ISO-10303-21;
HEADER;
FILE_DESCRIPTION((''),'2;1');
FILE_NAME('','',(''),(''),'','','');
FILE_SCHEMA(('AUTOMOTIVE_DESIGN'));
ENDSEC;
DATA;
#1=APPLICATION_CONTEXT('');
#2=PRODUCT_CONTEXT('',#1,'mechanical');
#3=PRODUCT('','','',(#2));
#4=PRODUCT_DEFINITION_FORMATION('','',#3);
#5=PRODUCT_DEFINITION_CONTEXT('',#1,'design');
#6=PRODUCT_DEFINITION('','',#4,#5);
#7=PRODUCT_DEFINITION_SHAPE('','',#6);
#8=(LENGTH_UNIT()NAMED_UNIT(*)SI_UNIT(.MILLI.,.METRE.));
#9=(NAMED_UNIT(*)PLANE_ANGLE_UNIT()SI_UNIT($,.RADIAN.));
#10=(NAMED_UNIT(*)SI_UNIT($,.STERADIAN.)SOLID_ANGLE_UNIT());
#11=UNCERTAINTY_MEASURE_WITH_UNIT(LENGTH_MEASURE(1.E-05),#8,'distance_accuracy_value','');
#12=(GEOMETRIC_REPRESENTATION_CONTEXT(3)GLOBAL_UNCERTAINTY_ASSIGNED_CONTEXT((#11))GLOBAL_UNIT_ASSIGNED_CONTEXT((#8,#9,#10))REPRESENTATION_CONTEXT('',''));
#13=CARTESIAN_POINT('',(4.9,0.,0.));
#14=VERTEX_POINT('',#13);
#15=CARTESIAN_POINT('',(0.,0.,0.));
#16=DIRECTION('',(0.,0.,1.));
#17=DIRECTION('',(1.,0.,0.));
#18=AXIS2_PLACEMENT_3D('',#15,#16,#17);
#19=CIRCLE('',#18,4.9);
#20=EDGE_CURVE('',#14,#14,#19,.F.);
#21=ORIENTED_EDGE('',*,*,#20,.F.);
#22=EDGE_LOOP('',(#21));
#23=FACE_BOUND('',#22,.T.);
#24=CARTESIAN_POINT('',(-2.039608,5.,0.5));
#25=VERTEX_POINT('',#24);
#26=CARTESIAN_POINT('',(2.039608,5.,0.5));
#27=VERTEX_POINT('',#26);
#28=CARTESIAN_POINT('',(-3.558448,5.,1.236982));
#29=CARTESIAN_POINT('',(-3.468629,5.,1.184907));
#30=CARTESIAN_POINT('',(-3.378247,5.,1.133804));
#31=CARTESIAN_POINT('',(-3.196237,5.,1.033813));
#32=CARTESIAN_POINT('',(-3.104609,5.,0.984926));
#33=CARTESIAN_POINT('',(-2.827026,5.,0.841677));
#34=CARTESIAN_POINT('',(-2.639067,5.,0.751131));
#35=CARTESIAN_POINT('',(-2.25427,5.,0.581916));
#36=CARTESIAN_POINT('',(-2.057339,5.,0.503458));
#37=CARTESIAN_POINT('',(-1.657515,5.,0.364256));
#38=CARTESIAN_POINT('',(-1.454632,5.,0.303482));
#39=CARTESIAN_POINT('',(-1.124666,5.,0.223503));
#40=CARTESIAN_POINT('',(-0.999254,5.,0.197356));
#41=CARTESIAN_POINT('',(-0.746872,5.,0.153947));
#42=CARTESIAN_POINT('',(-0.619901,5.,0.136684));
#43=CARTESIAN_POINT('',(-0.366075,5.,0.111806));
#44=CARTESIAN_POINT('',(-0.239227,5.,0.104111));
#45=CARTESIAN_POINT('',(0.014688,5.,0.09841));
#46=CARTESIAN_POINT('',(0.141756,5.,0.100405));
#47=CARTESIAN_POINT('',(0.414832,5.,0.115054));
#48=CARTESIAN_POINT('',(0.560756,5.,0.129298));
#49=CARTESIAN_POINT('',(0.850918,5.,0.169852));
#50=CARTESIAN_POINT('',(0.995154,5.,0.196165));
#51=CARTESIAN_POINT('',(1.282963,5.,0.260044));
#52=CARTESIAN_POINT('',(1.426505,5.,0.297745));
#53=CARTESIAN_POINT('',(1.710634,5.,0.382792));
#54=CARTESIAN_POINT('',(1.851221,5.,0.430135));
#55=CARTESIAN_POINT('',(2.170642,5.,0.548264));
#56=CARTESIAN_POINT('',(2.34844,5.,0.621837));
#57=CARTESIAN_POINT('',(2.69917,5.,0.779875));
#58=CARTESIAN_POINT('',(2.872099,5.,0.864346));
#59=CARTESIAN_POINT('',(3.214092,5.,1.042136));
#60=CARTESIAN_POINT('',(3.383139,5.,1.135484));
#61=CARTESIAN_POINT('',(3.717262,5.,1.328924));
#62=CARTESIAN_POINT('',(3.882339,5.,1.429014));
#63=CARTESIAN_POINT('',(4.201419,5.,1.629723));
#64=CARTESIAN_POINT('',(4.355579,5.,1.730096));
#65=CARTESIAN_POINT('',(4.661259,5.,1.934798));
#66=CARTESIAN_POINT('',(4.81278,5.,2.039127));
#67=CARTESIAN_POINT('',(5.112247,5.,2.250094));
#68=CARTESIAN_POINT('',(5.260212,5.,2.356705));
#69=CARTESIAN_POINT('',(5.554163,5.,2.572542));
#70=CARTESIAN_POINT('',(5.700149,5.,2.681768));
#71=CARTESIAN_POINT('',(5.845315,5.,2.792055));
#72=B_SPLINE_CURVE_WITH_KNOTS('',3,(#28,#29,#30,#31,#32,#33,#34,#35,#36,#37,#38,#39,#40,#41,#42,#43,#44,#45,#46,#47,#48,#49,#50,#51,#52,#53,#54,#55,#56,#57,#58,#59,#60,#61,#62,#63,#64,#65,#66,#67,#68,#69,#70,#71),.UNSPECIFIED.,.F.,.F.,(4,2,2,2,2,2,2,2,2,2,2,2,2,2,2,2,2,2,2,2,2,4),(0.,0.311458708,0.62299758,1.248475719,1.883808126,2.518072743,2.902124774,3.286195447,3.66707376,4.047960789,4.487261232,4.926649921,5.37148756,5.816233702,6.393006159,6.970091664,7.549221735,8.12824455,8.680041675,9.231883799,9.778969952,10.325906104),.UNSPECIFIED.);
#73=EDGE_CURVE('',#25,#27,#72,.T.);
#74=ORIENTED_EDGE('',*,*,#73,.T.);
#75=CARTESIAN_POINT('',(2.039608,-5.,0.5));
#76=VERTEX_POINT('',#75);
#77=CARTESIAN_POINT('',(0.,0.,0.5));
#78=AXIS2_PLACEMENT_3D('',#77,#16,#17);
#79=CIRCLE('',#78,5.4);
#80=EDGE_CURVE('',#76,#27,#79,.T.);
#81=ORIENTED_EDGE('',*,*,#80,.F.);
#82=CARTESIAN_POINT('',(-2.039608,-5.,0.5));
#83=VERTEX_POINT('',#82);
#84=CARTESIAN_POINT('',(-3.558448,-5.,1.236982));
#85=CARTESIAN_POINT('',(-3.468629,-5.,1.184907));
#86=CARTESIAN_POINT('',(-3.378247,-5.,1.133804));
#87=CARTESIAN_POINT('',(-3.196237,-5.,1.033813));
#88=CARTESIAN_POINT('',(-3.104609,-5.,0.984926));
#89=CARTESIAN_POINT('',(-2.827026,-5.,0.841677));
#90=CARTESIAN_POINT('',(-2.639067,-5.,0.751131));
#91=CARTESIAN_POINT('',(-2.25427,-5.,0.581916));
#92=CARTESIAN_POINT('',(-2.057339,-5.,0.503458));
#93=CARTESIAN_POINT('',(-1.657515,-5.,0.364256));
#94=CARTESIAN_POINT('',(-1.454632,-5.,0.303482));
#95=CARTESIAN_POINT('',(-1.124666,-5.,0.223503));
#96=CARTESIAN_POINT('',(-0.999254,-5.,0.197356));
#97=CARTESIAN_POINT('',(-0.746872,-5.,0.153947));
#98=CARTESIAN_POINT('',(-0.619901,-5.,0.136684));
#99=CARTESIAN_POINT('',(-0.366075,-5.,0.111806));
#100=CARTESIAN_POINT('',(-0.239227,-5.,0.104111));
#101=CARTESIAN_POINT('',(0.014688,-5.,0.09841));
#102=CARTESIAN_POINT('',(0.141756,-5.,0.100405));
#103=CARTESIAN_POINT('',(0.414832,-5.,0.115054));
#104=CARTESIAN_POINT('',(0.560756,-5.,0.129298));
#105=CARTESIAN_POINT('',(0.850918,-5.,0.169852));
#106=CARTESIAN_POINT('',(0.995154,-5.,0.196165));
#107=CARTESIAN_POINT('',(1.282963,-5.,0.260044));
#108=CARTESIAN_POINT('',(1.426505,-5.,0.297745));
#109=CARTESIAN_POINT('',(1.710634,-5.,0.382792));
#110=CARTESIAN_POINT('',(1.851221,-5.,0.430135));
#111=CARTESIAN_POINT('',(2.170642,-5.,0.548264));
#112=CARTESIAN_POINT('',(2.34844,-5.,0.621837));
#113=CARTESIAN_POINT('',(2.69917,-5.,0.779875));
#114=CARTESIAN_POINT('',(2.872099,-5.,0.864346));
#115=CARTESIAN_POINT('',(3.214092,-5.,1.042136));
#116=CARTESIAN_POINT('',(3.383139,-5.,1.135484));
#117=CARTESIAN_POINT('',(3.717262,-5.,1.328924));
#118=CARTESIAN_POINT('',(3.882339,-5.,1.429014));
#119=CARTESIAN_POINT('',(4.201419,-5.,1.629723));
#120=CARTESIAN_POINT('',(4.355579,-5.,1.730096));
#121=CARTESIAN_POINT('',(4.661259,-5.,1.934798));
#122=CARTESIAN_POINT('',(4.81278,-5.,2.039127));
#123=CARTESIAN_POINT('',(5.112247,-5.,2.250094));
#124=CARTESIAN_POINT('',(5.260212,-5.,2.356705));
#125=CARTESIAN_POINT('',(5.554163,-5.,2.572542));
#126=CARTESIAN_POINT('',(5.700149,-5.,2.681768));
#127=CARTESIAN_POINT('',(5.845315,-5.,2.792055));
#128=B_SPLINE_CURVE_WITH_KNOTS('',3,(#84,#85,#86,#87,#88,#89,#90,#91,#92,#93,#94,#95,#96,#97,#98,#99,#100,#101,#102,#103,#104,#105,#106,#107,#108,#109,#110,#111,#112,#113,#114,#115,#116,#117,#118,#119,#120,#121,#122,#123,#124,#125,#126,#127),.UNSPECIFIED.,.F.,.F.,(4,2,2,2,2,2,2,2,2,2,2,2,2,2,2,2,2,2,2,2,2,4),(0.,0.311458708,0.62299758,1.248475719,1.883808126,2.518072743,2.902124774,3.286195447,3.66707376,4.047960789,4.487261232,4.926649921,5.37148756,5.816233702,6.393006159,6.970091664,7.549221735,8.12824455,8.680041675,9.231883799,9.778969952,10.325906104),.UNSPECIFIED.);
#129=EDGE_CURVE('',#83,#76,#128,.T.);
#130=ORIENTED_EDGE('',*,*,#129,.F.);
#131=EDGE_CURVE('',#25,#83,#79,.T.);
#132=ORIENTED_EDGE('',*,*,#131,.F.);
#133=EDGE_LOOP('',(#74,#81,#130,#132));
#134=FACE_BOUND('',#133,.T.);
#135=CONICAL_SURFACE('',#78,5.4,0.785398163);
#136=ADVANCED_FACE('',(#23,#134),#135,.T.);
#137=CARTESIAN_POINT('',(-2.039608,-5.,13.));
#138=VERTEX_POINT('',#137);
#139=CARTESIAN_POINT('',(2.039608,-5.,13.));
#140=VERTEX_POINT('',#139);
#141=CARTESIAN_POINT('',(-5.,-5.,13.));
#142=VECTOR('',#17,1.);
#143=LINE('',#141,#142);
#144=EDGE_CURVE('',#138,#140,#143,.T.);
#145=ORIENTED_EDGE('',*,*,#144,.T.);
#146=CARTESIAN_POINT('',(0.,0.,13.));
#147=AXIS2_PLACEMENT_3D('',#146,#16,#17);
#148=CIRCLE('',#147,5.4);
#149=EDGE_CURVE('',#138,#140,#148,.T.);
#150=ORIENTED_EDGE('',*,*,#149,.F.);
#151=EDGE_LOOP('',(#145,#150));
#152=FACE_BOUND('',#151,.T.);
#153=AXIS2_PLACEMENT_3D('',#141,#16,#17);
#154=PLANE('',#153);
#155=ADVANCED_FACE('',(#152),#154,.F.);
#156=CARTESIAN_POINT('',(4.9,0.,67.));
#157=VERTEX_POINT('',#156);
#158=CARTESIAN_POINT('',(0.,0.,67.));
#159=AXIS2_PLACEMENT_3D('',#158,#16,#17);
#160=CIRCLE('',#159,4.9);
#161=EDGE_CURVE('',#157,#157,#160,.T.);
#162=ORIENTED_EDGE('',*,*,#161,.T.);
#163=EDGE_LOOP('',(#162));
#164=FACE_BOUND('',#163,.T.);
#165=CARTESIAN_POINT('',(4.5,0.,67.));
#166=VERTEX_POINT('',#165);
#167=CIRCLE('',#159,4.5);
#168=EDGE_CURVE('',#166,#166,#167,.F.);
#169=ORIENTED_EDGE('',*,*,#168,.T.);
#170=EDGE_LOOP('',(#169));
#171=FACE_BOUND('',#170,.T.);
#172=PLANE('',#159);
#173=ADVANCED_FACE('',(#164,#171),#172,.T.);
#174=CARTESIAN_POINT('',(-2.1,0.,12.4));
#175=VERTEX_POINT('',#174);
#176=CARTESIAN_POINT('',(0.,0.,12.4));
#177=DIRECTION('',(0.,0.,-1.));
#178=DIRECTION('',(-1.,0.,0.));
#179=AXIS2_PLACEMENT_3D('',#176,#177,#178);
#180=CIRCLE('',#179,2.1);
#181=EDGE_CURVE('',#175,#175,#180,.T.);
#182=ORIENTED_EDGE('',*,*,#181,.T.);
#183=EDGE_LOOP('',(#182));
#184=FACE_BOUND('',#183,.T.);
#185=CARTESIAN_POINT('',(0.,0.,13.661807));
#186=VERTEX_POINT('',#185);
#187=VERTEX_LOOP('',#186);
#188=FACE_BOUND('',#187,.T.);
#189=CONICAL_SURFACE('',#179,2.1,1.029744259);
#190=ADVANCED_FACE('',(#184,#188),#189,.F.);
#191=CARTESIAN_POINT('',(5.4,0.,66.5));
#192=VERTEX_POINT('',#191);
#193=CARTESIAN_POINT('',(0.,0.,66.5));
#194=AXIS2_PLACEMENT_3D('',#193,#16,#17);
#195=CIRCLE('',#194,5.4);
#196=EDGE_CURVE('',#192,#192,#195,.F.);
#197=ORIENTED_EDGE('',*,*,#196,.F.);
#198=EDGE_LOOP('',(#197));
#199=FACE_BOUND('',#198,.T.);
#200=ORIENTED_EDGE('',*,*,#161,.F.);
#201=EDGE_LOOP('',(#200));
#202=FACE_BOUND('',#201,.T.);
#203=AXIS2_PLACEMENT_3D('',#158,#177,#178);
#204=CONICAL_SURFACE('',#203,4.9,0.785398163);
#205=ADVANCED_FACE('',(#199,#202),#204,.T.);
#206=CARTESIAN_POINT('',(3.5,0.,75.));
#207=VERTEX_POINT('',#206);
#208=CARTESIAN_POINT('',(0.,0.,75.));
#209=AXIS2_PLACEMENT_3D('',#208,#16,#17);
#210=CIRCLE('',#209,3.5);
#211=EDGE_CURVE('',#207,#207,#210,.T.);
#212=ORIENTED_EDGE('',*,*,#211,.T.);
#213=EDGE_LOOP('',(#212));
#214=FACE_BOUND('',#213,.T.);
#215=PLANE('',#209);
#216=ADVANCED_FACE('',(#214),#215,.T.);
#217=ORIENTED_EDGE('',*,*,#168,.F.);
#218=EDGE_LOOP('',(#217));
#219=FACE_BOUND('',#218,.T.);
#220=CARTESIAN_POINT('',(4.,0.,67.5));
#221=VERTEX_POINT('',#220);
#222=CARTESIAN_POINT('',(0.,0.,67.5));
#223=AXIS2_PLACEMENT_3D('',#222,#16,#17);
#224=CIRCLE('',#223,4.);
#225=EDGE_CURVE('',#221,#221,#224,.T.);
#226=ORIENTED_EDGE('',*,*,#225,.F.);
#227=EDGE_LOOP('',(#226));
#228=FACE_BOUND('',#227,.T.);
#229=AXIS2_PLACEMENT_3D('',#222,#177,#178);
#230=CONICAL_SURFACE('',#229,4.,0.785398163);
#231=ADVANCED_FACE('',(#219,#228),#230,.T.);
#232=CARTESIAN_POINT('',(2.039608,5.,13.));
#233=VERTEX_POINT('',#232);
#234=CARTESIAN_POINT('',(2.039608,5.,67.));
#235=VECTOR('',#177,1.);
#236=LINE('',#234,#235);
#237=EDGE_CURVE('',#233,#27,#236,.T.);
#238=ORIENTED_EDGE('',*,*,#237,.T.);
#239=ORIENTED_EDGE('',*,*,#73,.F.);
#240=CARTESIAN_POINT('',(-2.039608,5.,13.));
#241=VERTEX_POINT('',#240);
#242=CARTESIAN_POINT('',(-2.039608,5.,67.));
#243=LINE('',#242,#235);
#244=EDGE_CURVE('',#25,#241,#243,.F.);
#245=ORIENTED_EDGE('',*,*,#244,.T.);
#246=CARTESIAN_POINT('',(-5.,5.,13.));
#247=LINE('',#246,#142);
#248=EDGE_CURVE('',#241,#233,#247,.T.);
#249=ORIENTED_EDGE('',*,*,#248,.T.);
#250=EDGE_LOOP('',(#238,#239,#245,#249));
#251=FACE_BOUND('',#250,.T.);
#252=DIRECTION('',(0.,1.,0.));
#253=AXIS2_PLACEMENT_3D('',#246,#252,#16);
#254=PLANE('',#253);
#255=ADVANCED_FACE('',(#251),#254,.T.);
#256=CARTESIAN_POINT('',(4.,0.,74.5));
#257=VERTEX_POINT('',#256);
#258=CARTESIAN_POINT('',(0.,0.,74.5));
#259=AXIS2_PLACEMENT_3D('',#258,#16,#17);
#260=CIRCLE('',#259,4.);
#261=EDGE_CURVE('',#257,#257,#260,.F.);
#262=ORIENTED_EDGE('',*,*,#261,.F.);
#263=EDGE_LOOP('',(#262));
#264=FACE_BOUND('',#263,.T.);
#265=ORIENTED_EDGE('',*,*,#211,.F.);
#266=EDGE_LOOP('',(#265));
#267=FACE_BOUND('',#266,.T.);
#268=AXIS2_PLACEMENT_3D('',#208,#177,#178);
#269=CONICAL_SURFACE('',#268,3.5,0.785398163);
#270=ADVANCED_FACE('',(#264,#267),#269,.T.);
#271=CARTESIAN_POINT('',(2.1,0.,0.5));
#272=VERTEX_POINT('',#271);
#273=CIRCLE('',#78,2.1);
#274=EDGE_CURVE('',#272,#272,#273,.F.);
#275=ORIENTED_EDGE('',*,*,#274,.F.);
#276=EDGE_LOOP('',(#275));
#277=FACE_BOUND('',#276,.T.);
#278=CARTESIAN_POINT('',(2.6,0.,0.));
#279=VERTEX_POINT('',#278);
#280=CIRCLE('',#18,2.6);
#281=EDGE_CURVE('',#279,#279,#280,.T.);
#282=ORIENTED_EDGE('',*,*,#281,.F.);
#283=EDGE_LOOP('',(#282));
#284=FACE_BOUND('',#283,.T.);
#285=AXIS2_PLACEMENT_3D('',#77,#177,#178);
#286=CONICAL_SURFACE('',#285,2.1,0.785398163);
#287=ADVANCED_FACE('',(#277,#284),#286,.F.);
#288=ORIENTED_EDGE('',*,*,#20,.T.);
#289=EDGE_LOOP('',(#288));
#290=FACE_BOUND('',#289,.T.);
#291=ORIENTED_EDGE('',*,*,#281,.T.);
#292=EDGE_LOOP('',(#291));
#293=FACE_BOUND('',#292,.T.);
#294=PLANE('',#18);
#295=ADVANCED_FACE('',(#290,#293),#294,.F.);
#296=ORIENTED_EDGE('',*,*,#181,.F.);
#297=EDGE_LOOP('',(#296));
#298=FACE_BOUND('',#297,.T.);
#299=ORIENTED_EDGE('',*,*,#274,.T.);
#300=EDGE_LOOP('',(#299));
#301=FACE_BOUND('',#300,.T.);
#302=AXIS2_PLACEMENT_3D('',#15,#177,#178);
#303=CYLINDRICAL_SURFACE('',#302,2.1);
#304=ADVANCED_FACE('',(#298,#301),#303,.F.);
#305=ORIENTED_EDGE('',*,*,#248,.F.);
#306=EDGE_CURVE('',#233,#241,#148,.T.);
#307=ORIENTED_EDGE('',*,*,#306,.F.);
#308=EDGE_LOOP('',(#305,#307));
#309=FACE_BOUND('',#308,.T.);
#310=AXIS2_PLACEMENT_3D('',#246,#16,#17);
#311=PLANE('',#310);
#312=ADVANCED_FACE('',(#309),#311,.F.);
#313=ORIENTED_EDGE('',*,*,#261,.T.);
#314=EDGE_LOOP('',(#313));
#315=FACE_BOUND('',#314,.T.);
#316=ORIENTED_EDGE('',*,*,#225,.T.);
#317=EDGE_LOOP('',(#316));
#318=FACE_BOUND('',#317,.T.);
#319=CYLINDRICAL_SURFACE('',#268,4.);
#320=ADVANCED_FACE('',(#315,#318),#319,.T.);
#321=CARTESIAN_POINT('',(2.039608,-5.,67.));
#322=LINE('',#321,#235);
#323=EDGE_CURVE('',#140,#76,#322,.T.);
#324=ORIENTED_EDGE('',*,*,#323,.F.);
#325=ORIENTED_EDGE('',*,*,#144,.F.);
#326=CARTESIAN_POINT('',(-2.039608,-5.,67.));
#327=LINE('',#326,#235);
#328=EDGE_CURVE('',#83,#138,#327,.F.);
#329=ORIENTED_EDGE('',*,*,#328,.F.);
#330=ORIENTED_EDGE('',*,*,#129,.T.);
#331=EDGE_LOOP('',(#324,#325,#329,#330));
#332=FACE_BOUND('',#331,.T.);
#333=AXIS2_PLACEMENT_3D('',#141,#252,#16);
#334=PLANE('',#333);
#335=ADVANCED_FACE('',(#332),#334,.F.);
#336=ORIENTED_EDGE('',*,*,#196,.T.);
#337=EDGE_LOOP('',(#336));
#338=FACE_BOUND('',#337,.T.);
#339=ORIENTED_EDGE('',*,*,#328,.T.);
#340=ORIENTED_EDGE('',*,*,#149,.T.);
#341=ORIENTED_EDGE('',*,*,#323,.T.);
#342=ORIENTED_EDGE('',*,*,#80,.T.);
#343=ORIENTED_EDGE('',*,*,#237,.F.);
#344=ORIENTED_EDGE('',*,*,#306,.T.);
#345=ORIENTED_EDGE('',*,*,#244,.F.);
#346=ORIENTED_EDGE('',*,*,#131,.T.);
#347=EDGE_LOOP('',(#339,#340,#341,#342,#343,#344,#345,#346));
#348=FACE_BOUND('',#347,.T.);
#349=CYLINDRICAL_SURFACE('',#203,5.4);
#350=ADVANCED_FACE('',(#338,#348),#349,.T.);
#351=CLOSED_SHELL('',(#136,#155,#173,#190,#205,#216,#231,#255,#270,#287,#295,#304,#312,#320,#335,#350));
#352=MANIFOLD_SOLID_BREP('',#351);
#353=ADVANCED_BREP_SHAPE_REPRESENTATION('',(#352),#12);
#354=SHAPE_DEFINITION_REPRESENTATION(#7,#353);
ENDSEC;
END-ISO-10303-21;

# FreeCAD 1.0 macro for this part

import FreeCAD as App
import Part
import Sketcher

V = App.Vector


def edges_at(feature, points):
    """Names of the edges that pass closest to the given points."""
    edges = feature.Shape.Edges
    near = lambda p: min(range(len(edges)), key=lambda i: edges[i].distToShape(Part.Vertex(*p))[0])
    return sorted({f"Edge{near(p) + 1}" for p in points})


def add_polygon(sketch, points):
    """Adds a closed chain of lines whose ends are joined by coincident constraints."""
    first, n = sketch.GeometryCount, len(points)
    for a, b in zip(points, points[1:] + points[:1]):
        sketch.addGeometry(Part.LineSegment(App.Vector(*a, 0), App.Vector(*b, 0)), False)
    for i in range(n):
        sketch.addConstraint(Sketcher.Constraint("Coincident", first + i, 2, first + (i + 1) % n, 1))

doc = App.newDocument("Part")
body = doc.addObject("PartDesign::Body", "Body")

# Sketch on XY plane
sketch1 = body.newObject("Sketcher::SketchObject", "Sketch")
sketch1.AttachmentSupport = (doc.getObject("XY_Plane"), [""])
sketch1.MapMode = "FlatFace"
sketch1.addGeometry(Part.Circle(V(0, 0, 0), V(0, 0, 1), 5), False)
sketch1.addConstraint([
    Sketcher.Constraint("Coincident", 0, 3, -1, 1),
    Sketcher.Constraint("Diameter", 0, 10.8),
])
pad1 = body.newObject("PartDesign::Pad", "Pad")
pad1.Profile = sketch1
pad1.Length = 67
doc.recompute()

chamfer = body.newObject("PartDesign::Chamfer", "Chamfer")
chamfer.Base = (pad1, edges_at(pad1, [(-5.4, 0, 0), (-5.4, 0, 67)]))
chamfer.Size = 0.5

# Sketch on XY plane
sketch2 = body.newObject("Sketcher::SketchObject", "Sketch001")
sketch2.AttachmentSupport = (doc.getObject("XY_Plane"), [""])
sketch2.MapMode = "FlatFace"
sketch2.AttachmentOffset = App.Placement(V(0, 0, 67), App.Rotation())
sketch2.addGeometry(Part.Circle(V(0, 0, 0), V(0, 0, 1), 4), False)
sketch2.addConstraint([
    Sketcher.Constraint("Coincident", 0, 3, -1, 1),
    Sketcher.Constraint("Diameter", 0, 8.0),
])
pad2 = body.newObject("PartDesign::Pad", "Pad001")
pad2.Profile = sketch2
pad2.Length = 8
doc.recompute()

chamfer2 = body.newObject("PartDesign::Chamfer", "Chamfer001")
chamfer2.Base = (pad2, edges_at(pad2, [(-4, 0, 75)]))
chamfer2.Size = 0.5

# Sketch on XY plane
sketch3 = body.newObject("Sketcher::SketchObject", "Sketch002")
sketch3.AttachmentSupport = (doc.getObject("XY_Plane"), [""])
sketch3.MapMode = "FlatFace"
sketch3.addGeometry(Part.Circle(V(0, 0, 0), V(0, 0, 1), 2.1), False)
sketch3.addConstraint([
    Sketcher.Constraint("Coincident", 0, 3, -1, 1),
    Sketcher.Constraint("Diameter", 0, 4.2),
])
doc.recompute()
hole = body.newObject("PartDesign::Hole", "Hole")
hole.Profile = sketch3
hole.ThreadType = "None"
hole.Diameter = 4.2
hole.DepthType = "Dimension"
hole.Depth = 12.4
hole.DrillPoint = "Angled"
hole.DrillPointAngle = 118
hole.Reversed = True
doc.recompute()

chamfer3 = body.newObject("PartDesign::Chamfer", "Chamfer002")
chamfer3.Base = (hole, edges_at(hole, [(-2.1, 0, 0)]))
chamfer3.Size = 0.5

# Sketch on XY plane
sketch4 = body.newObject("Sketcher::SketchObject", "Sketch003")
sketch4.AttachmentSupport = (doc.getObject("XY_Plane"), [""])
sketch4.MapMode = "FlatFace"
add_polygon(sketch4, [(-5, 8), (-5, 5), (5, 5), (5, 8)])  # lines 0-3
sketch4.addConstraint([
    Sketcher.Constraint("Vertical", 0),
    Sketcher.Constraint("Horizontal", 1),
    Sketcher.Constraint("Vertical", 2),
    Sketcher.Constraint("Horizontal", 3),
    Sketcher.Constraint("DistanceX", 1, 1, 1, 2, 10.0),
    Sketcher.Constraint("DistanceY", 0, 2, 0, 1, 3.0),
    Sketcher.Constraint("DistanceX", 0, 2, -1, 1, 5.0),
    Sketcher.Constraint("DistanceY", -1, 1, 0, 2, 5.0),
])
pocket1 = body.newObject("PartDesign::Pocket", "Pocket")
pocket1.Profile = sketch4
pocket1.Length = 13
pocket1.Reversed = True
doc.recompute()

mirrored = body.newObject("PartDesign::Mirrored", "Mirrored")
mirrored.Originals = [pocket1]
mirrored.MirrorPlane = (doc.getObject("XZ_Plane"), [""])
body.Tip = mirrored
doc.recompute()

chamfer4 = body.newObject("PartDesign::Chamfer", "Chamfer003")
chamfer4.Base = (mirrored, edges_at(mirrored, [(-4, 0, 67)]))
chamfer4.Size = 0.5

doc.recompute()
